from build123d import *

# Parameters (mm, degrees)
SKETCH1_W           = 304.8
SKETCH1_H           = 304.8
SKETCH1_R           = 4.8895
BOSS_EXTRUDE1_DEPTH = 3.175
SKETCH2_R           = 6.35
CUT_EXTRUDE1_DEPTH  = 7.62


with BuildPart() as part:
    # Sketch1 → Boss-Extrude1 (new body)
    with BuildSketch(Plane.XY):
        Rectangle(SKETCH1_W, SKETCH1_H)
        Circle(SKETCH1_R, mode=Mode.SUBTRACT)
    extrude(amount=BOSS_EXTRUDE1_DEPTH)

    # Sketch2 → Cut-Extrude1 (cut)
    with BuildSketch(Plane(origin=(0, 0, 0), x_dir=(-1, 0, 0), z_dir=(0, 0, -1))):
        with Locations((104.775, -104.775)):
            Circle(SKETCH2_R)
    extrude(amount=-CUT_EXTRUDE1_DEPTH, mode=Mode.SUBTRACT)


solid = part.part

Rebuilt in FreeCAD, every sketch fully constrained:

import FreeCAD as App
import Part
import Sketcher

V = App.Vector
Q = App.Units.Quantity


def add_polygon(sketch, points):
    """Adds a closed chain of lines whose ends are joined by coincident constraints."""
    first, n = sketch.GeometryCount, len(points)
    for a, b in zip(points, points[1:] + points[:1]):
        sketch.addGeometry(Part.LineSegment(App.Vector(*a, 0), App.Vector(*b, 0)), False)
    for i in range(n):
        sketch.addConstraint(Sketcher.Constraint("Coincident", first + i, 2, first + (i + 1) % n, 1))

doc = App.newDocument("Part")
body = doc.addObject("PartDesign::Body", "Body")

sketch1 = body.newObject("Sketcher::SketchObject", "Sketch")
sketch1.AttachmentSupport = (doc.getObject("XY_Plane"), [""])
sketch1.MapMode = "FlatFace"
add_polygon(sketch1, [(-152.4, 152.4), (-152.4, -152.4), (152.4, -152.4), (152.4, 152.4)])
sketch1.addGeometry(Part.Circle(V(0, 0, 0), V(0, 0, 1), 4.9), False)
sketch1.addConstraint(Sketcher.Constraint("Vertical", 0))
sketch1.addConstraint(Sketcher.Constraint("Horizontal", 1))
sketch1.addConstraint(Sketcher.Constraint("Vertical", 2))
sketch1.addConstraint(Sketcher.Constraint("Horizontal", 3))
sketch1.addConstraint(Sketcher.Constraint("Coincident", 4, 3, -1, 1))
sketch1.addConstraint(Sketcher.Constraint("Symmetric", 0, 2, 2, 2, -1, 1))
sketch1.addConstraint(Sketcher.Constraint("Equal", 3, 0))
sketch1.addConstraint(Sketcher.Constraint("DistanceX", 1, 1, 1, 2, Q("12 in")))
sketch1.addConstraint(Sketcher.Constraint("Diameter", 4, Q("0.385 in")))
pad1 = body.newObject("PartDesign::Pad", "Pad")
pad1.Profile = sketch1
pad1.Length = Q("0.125 in")

sketch2 = body.newObject("Sketcher::SketchObject", "Sketch001")
sketch2.AttachmentSupport = (doc.getObject("XY_Plane"), [""])
sketch2.MapMode = "FlatFace"
sketch2.addGeometry(Part.Circle(V(-105, -105, 0), V(0, 0, 1), 6), False)
sketch2.addConstraint(Sketcher.Constraint("Diameter", 0, Q("0.5 in")))
sketch2.addConstraint(Sketcher.Constraint("DistanceX", 0, 3, -1, 1, Q("4.125 in")))
sketch2.addConstraint(Sketcher.Constraint("DistanceY", 0, 3, -1, 1, Q("4.125 in")))
pocket1 = body.newObject("PartDesign::Pocket", "Pocket")
pocket1.Profile = sketch2
pocket1.Length = Q("0.3 in")
pocket1.Reversed = True

doc.recompute()
